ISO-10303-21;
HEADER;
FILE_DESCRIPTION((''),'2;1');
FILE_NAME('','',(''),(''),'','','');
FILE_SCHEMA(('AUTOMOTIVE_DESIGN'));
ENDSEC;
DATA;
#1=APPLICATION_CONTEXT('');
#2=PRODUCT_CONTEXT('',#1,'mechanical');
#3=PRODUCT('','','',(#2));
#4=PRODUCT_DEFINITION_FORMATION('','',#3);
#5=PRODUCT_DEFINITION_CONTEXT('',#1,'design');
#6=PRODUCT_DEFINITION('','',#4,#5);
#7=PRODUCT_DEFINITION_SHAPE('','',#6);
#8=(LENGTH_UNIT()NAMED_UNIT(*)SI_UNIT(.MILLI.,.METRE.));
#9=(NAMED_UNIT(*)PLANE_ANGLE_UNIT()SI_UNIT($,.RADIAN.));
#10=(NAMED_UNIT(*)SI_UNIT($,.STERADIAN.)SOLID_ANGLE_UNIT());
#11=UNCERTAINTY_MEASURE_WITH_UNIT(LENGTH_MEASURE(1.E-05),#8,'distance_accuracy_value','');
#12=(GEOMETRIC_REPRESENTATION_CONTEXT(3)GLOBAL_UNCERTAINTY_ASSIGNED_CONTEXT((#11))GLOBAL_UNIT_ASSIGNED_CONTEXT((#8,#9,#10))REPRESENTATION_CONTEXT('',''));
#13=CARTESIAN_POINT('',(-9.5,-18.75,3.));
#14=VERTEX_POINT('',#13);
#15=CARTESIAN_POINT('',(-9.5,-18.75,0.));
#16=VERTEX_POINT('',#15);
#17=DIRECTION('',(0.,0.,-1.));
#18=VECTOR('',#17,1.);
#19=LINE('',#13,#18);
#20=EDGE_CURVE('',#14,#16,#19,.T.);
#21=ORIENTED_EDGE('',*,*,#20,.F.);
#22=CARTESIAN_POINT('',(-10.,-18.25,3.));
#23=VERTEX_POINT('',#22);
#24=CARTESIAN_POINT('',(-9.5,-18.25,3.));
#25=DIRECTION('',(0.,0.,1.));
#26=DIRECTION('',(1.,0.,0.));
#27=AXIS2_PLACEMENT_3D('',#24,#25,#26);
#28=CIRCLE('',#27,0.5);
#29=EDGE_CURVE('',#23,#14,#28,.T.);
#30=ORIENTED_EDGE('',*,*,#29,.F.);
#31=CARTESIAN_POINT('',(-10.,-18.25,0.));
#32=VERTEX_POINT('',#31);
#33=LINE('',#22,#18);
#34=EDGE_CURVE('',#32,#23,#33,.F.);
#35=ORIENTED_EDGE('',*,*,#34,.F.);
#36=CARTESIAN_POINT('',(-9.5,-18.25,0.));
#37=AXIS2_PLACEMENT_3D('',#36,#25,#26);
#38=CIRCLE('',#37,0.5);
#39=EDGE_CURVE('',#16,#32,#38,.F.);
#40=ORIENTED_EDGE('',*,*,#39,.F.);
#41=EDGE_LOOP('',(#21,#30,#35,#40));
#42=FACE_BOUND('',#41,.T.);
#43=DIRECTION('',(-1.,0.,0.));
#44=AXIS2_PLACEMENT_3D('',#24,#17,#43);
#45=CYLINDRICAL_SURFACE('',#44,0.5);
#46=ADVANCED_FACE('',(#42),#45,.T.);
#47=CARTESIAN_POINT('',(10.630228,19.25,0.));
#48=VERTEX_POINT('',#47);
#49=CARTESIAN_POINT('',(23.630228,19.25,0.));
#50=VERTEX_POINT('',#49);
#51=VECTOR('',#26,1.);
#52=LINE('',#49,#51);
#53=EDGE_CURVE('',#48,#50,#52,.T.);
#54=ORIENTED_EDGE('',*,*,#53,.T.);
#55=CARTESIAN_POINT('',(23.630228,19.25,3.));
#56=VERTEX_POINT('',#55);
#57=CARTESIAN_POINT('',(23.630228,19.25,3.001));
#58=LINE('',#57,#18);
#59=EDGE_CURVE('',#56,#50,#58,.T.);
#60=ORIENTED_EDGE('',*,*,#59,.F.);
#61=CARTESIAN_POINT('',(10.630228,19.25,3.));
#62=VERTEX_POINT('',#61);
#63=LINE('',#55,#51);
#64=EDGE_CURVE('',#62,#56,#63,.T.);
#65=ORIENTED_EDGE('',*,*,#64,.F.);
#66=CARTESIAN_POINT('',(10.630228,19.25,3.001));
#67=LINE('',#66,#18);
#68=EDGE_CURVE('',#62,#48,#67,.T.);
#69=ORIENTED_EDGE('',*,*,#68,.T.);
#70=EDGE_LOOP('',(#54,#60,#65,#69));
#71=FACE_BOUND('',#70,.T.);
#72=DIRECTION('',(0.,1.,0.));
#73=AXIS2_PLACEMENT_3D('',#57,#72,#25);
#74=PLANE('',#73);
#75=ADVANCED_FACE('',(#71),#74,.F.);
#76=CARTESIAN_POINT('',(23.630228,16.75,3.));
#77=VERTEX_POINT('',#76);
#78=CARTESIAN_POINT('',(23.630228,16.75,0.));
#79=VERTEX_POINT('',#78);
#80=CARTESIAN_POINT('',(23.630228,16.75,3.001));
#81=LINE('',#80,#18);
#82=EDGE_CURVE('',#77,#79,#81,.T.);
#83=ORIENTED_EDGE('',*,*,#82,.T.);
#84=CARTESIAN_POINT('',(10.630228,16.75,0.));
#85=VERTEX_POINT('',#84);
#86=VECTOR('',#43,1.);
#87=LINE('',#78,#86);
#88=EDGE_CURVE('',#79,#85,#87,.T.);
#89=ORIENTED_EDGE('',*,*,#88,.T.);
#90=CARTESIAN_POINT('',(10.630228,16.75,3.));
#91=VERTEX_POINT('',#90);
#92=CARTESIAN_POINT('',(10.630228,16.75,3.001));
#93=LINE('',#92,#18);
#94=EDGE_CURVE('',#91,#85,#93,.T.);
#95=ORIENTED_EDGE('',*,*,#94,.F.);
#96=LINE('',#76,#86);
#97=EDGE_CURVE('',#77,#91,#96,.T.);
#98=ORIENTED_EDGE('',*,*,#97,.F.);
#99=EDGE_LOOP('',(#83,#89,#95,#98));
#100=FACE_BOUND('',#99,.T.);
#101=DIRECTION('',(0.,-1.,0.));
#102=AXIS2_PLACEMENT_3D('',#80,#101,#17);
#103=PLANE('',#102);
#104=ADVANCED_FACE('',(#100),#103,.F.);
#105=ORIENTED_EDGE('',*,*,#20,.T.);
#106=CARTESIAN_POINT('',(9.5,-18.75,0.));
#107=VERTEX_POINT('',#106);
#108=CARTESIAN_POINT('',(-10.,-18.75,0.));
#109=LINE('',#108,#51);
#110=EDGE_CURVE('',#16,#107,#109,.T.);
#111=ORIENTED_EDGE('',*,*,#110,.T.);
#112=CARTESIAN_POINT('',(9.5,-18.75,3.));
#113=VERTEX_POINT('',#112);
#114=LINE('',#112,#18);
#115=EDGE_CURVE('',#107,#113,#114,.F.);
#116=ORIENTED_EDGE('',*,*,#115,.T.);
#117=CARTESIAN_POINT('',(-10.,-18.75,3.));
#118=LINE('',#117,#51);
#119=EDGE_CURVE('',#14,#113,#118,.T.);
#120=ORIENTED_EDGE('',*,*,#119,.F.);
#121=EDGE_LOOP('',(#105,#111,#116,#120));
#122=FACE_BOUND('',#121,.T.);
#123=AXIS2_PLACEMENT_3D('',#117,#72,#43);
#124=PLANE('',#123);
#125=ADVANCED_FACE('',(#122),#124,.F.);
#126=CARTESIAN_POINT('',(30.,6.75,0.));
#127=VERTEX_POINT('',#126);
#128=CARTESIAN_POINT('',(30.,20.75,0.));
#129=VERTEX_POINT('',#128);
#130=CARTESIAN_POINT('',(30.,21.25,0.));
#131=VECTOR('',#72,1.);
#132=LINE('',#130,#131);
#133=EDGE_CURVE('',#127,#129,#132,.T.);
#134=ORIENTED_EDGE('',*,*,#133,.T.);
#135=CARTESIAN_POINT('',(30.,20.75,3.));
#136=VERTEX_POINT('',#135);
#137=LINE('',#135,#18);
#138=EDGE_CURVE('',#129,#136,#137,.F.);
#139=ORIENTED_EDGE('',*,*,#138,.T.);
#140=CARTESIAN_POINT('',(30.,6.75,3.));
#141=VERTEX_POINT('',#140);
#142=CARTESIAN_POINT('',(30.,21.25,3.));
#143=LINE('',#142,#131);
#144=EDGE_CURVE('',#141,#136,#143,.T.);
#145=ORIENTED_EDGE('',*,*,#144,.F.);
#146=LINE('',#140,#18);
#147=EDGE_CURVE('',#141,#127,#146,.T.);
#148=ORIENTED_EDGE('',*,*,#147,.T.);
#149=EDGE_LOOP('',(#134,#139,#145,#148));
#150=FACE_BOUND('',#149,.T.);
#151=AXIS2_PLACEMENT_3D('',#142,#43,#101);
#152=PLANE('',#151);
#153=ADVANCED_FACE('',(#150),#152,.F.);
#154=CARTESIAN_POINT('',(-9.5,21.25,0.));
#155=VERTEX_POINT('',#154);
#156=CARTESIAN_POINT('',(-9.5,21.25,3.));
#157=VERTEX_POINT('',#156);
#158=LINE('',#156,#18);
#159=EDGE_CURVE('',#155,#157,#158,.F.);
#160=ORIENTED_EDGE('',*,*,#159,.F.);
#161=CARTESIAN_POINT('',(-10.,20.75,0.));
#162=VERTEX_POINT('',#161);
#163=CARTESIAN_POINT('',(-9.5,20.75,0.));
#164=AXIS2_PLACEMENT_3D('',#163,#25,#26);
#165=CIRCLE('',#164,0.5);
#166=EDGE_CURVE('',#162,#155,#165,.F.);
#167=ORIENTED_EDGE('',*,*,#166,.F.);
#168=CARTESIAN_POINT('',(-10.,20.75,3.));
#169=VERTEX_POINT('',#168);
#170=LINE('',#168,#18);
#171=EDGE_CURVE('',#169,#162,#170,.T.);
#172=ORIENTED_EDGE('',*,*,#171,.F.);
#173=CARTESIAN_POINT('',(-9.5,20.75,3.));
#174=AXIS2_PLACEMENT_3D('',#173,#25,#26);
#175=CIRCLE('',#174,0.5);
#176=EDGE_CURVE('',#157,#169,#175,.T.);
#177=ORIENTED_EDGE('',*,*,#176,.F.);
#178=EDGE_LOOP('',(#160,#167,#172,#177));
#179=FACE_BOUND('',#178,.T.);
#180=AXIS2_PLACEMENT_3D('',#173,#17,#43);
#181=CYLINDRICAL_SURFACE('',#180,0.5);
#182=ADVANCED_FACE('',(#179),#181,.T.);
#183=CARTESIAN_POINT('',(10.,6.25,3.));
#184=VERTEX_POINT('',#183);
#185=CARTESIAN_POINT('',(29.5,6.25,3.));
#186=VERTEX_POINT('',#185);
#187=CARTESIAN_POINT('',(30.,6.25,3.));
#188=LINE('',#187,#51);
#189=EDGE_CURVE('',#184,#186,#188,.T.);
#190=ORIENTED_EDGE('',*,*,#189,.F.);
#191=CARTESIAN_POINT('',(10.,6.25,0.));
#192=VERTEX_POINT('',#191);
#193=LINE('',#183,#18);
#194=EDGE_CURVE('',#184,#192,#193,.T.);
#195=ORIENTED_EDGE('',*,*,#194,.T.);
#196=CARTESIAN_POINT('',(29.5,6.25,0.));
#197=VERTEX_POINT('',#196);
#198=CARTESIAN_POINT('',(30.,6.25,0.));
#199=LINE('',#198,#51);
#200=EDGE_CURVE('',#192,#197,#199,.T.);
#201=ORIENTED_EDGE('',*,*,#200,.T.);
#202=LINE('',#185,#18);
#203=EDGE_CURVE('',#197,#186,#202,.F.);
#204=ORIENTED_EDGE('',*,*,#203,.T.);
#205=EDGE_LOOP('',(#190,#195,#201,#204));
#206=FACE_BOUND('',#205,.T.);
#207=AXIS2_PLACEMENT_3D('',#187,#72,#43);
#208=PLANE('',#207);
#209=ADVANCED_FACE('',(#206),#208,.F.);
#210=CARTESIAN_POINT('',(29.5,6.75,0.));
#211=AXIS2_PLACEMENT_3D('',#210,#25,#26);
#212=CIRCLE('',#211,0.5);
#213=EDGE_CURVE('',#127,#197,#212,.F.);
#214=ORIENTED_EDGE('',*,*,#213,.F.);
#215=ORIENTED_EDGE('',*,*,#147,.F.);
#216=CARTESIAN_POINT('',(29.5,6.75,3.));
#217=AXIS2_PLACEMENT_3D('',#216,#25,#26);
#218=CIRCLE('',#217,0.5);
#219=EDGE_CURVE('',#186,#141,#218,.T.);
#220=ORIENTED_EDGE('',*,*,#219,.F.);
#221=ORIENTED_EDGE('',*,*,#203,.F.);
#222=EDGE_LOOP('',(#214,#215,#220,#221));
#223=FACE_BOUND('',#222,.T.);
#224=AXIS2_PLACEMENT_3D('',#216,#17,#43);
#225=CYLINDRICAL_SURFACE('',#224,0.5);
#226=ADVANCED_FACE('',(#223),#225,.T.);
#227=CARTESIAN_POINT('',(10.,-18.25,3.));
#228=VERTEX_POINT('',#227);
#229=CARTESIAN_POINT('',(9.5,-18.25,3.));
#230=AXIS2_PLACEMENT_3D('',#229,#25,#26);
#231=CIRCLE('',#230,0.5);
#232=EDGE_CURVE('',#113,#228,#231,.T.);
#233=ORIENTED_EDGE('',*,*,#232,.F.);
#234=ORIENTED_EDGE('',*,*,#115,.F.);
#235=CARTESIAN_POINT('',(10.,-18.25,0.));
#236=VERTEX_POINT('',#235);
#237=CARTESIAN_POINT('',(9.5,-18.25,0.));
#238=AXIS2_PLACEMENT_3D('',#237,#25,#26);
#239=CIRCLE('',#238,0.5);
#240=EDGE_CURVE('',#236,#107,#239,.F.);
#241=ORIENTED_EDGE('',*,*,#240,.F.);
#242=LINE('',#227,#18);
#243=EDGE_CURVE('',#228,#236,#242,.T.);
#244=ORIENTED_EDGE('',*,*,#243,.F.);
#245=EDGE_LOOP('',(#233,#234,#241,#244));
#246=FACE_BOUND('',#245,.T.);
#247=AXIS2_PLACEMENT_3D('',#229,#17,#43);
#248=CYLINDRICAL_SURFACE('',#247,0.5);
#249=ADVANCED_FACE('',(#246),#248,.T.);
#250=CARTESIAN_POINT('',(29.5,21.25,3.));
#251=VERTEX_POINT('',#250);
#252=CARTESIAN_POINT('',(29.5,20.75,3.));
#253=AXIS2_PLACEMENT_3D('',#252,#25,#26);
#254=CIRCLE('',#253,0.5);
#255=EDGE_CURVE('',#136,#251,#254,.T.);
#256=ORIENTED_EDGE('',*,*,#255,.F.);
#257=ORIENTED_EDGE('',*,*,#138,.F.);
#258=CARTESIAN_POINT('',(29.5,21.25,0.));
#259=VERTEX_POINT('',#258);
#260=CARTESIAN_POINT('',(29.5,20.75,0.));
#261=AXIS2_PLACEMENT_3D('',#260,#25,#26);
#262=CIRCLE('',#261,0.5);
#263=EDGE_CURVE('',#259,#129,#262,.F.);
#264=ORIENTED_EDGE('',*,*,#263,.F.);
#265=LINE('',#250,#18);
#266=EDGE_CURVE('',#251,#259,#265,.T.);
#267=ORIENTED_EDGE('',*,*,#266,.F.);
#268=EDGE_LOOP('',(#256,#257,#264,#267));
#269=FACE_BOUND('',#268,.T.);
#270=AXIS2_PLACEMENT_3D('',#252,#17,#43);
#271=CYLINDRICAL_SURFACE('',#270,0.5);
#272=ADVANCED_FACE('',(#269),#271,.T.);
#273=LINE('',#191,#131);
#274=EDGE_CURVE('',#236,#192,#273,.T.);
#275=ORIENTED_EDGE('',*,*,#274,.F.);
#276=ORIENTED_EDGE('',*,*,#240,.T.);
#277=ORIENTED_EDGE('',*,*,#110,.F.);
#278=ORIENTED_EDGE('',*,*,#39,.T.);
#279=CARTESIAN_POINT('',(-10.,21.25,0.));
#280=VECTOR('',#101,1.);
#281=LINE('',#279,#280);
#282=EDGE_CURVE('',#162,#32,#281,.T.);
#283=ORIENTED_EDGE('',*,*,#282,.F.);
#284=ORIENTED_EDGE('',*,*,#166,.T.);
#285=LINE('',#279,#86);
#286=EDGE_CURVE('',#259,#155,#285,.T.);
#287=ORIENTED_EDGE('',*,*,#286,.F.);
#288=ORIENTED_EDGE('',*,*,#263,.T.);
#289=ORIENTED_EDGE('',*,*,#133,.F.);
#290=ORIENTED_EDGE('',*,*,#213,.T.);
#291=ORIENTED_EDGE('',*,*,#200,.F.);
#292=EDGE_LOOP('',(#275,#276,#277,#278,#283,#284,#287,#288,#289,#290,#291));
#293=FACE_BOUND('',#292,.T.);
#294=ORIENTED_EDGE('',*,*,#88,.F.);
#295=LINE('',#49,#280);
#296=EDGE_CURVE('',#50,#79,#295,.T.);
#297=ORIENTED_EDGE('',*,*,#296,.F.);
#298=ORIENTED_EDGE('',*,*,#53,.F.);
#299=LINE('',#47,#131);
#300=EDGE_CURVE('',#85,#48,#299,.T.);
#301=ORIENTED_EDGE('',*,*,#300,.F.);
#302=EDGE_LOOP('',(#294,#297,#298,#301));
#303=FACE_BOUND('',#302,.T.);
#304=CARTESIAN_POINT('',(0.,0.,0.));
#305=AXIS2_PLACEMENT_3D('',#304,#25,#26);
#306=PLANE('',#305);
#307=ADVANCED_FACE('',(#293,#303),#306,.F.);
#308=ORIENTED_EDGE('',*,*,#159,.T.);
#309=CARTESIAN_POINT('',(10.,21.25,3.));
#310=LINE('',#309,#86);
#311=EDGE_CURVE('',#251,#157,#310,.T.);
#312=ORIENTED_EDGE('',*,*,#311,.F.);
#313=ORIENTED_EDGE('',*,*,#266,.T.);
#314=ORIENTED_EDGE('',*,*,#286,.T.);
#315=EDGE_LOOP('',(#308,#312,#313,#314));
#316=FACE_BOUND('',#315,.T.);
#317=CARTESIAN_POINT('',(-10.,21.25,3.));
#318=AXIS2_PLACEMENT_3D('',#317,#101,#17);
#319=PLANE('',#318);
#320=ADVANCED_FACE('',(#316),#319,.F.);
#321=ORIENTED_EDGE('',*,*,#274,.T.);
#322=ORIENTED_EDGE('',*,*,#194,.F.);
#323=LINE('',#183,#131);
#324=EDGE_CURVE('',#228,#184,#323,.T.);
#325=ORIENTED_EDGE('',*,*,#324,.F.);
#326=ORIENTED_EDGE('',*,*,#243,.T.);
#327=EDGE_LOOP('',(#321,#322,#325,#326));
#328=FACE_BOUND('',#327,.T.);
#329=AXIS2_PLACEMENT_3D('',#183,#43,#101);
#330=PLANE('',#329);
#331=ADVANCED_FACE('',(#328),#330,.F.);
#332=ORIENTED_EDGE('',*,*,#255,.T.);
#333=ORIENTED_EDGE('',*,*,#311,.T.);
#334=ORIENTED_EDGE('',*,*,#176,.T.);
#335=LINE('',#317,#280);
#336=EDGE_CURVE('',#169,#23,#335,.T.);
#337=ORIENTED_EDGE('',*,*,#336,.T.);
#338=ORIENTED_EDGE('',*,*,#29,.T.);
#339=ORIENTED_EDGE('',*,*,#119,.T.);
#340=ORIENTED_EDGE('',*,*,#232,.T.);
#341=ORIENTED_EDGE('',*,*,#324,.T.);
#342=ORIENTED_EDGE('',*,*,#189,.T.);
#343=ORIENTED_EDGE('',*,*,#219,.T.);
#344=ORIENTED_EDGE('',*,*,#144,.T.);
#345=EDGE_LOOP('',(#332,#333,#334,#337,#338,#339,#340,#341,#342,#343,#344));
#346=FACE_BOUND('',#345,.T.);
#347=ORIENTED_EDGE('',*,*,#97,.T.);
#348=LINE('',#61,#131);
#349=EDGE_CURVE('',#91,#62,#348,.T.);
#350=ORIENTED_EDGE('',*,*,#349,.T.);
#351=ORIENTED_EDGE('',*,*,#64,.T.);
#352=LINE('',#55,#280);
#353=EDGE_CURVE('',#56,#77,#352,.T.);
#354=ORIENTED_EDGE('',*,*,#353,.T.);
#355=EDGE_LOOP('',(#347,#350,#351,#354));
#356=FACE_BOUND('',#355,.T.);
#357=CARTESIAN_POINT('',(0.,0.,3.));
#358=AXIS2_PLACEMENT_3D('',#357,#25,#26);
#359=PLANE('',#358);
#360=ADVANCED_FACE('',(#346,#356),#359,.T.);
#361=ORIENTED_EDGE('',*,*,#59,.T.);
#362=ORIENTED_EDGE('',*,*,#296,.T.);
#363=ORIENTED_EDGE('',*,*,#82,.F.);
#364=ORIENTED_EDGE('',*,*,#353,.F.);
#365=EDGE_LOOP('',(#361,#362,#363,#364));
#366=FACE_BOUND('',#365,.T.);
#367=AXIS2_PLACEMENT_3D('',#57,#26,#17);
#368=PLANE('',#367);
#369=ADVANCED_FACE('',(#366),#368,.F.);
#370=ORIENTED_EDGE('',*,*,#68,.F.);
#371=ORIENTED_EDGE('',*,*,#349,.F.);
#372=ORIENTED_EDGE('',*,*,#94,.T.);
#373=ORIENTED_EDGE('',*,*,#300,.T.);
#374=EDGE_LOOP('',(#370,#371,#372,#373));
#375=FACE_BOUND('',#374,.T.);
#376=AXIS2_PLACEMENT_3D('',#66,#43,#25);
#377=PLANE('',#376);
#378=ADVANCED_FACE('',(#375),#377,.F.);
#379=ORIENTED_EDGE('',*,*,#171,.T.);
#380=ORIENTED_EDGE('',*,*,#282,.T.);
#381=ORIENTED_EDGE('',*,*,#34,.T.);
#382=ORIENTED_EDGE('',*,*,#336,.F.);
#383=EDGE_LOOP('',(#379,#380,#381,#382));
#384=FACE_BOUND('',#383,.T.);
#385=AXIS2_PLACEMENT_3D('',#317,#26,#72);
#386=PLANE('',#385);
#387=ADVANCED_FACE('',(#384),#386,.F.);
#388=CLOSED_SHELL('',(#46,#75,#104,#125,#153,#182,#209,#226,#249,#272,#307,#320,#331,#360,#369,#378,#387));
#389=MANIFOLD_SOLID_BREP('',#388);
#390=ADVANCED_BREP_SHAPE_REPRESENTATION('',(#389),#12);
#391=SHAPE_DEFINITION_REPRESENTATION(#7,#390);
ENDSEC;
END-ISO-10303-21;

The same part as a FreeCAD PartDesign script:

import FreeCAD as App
import Part
import Sketcher

V = App.Vector
Q = App.Units.Quantity


def edges_at(feature, points):
    """Names of the edges that pass closest to the given points."""
    edges = feature.Shape.Edges
    near = lambda p: min(range(len(edges)), key=lambda i: edges[i].distToShape(Part.Vertex(*p))[0])
    return sorted({f"Edge{near(p) + 1}" for p in points})

doc = App.newDocument("Part")
params = doc.addObject("Spreadsheet::Sheet", "Params")
for row, (alias, value) in enumerate([
    ("sketch1_width", "40 mm"),
    ("sketch1_height", "25 mm"),
    ("pad1_length", "3 mm"),
    ("fillet_radius", "0.5 mm"),
    ("sketch2_width", "13 mm"),
    ("sketch2_height", "2.5 mm"),
], start=1):
    params.set(f"A{row}", alias)
    params.set(f"B{row}", "=" + value)
    params.setAlias(f"B{row}", alias)

body = doc.addObject("PartDesign::Body", "Body")

# Sketch on XY plane
sketch1 = body.newObject("Sketcher::SketchObject", "Sketch")
sketch1.AttachmentSupport = (doc.getObject("XY_Plane"), [""])
sketch1.MapMode = "FlatFace"
sketch1.addGeometry([
    Part.LineSegment(V(30, 21, 0), V(-10, 21, 0)),  # 0
    Part.LineSegment(V(-10, 21, 0), V(-10, -19, 0)),  # 1
    Part.LineSegment(V(-10, -19, 0), V(10, -19, 0)),  # 2
    Part.LineSegment(V(10, -19, 0), V(10, 6, 0)),  # 3
    Part.LineSegment(V(10, 6, 0), V(30, 6, 0)),  # 4
    Part.LineSegment(V(30, 6, 0), V(30, 21, 0)),  # 5
], False)
sketch1.addConstraint([
    Sketcher.Constraint("Coincident", 0, 2, 1, 1),
    Sketcher.Constraint("Coincident", 1, 2, 2, 1),
    Sketcher.Constraint("Coincident", 2, 2, 3, 1),
    Sketcher.Constraint("Coincident", 3, 2, 4, 1),
    Sketcher.Constraint("Coincident", 4, 2, 5, 1),
    Sketcher.Constraint("Coincident", 5, 2, 0, 1),
    Sketcher.Constraint("Horizontal", 0),
    Sketcher.Constraint("Vertical", 1),
    Sketcher.Constraint("Horizontal", 2),
    Sketcher.Constraint("Vertical", 3),
    Sketcher.Constraint("Horizontal", 4),
    Sketcher.Constraint("Vertical", 5),
    Sketcher.Constraint("Equal", 2, 4),
    Sketcher.Constraint("Equal", 0, 1),
    Sketcher.Constraint("DistanceX", 0, 2, 0, 1, Q("40 mm")),
    Sketcher.Constraint("DistanceY", 3, 1, 3, 2, Q("25 mm")),
    Sketcher.Constraint("DistanceX", 0, 2, -1, 1, Q("10 mm")),
    Sketcher.Constraint("DistanceY", -1, 1, 0, 2, Q("21.25 mm")),
])
sketch1.setExpression("Constraints[14]", "Params.sketch1_width")
sketch1.setExpression("Constraints[15]", "Params.sketch1_height")
pad1 = body.newObject("PartDesign::Pad", "Pad")
pad1.Profile = sketch1
pad1.setExpression("Length", "Params.pad1_length")
doc.recompute()

fillet = body.newObject("PartDesign::Fillet", "Fillet")
fillet.Base = (pad1, edges_at(pad1, [
    (-10, 21.25, 1.5),
    (30, 21.25, 1.5),
    (30, 6.25, 1.5),
    (10, -18.75, 1.5),
    (-10, -18.75, 1.5),
]))
fillet.setExpression("Radius", "Params.fillet_radius")

# Sketch on XY plane
sketch2 = body.newObject("Sketcher::SketchObject", "Sketch001")
sketch2.AttachmentSupport = (doc.getObject("XY_Plane"), [""])
sketch2.MapMode = "FlatFace"
sketch2.addGeometry([
    Part.LineSegment(V(23.6, 19.2, 0), V(23.6, 16.8, 0)),
    Part.LineSegment(V(23.6, 16.8, 0), V(10.6, 16.8, 0)),
    Part.LineSegment(V(10.6, 16.8, 0), V(10.6, 19.2, 0)),
    Part.LineSegment(V(10.6, 19.2, 0), V(23.6, 19.2, 0)),
], False)
sketch2.addConstraint([
    Sketcher.Constraint("Coincident", 0, 2, 1, 1),
    Sketcher.Constraint("Coincident", 1, 2, 2, 1),
    Sketcher.Constraint("Coincident", 2, 2, 3, 1),
    Sketcher.Constraint("Coincident", 3, 2, 0, 1),
    Sketcher.Constraint("Vertical", 0),
    Sketcher.Constraint("Horizontal", 1),
    Sketcher.Constraint("Vertical", 2),
    Sketcher.Constraint("Horizontal", 3),
    Sketcher.Constraint("DistanceX", 1, 2, 1, 1, Q("13 mm")),
    Sketcher.Constraint("DistanceY", 0, 2, 0, 1, Q("2.5 mm")),
    Sketcher.Constraint("DistanceY", -1, 1, 0, 2, Q("16.75 mm")),
    Sketcher.Constraint("DistanceX", -1, 1, 0, 2, Q("23.630228 mm")),
])
sketch2.setExpression("Constraints[8]", "Params.sketch2_width")
sketch2.setExpression("Constraints[9]", "Params.sketch2_height")
pocket1 = body.newObject("PartDesign::Pocket", "Pocket")
pocket1.Profile = sketch2
pocket1.Type = "UpToFirst"
pocket1.Reversed = True

doc.recompute()
